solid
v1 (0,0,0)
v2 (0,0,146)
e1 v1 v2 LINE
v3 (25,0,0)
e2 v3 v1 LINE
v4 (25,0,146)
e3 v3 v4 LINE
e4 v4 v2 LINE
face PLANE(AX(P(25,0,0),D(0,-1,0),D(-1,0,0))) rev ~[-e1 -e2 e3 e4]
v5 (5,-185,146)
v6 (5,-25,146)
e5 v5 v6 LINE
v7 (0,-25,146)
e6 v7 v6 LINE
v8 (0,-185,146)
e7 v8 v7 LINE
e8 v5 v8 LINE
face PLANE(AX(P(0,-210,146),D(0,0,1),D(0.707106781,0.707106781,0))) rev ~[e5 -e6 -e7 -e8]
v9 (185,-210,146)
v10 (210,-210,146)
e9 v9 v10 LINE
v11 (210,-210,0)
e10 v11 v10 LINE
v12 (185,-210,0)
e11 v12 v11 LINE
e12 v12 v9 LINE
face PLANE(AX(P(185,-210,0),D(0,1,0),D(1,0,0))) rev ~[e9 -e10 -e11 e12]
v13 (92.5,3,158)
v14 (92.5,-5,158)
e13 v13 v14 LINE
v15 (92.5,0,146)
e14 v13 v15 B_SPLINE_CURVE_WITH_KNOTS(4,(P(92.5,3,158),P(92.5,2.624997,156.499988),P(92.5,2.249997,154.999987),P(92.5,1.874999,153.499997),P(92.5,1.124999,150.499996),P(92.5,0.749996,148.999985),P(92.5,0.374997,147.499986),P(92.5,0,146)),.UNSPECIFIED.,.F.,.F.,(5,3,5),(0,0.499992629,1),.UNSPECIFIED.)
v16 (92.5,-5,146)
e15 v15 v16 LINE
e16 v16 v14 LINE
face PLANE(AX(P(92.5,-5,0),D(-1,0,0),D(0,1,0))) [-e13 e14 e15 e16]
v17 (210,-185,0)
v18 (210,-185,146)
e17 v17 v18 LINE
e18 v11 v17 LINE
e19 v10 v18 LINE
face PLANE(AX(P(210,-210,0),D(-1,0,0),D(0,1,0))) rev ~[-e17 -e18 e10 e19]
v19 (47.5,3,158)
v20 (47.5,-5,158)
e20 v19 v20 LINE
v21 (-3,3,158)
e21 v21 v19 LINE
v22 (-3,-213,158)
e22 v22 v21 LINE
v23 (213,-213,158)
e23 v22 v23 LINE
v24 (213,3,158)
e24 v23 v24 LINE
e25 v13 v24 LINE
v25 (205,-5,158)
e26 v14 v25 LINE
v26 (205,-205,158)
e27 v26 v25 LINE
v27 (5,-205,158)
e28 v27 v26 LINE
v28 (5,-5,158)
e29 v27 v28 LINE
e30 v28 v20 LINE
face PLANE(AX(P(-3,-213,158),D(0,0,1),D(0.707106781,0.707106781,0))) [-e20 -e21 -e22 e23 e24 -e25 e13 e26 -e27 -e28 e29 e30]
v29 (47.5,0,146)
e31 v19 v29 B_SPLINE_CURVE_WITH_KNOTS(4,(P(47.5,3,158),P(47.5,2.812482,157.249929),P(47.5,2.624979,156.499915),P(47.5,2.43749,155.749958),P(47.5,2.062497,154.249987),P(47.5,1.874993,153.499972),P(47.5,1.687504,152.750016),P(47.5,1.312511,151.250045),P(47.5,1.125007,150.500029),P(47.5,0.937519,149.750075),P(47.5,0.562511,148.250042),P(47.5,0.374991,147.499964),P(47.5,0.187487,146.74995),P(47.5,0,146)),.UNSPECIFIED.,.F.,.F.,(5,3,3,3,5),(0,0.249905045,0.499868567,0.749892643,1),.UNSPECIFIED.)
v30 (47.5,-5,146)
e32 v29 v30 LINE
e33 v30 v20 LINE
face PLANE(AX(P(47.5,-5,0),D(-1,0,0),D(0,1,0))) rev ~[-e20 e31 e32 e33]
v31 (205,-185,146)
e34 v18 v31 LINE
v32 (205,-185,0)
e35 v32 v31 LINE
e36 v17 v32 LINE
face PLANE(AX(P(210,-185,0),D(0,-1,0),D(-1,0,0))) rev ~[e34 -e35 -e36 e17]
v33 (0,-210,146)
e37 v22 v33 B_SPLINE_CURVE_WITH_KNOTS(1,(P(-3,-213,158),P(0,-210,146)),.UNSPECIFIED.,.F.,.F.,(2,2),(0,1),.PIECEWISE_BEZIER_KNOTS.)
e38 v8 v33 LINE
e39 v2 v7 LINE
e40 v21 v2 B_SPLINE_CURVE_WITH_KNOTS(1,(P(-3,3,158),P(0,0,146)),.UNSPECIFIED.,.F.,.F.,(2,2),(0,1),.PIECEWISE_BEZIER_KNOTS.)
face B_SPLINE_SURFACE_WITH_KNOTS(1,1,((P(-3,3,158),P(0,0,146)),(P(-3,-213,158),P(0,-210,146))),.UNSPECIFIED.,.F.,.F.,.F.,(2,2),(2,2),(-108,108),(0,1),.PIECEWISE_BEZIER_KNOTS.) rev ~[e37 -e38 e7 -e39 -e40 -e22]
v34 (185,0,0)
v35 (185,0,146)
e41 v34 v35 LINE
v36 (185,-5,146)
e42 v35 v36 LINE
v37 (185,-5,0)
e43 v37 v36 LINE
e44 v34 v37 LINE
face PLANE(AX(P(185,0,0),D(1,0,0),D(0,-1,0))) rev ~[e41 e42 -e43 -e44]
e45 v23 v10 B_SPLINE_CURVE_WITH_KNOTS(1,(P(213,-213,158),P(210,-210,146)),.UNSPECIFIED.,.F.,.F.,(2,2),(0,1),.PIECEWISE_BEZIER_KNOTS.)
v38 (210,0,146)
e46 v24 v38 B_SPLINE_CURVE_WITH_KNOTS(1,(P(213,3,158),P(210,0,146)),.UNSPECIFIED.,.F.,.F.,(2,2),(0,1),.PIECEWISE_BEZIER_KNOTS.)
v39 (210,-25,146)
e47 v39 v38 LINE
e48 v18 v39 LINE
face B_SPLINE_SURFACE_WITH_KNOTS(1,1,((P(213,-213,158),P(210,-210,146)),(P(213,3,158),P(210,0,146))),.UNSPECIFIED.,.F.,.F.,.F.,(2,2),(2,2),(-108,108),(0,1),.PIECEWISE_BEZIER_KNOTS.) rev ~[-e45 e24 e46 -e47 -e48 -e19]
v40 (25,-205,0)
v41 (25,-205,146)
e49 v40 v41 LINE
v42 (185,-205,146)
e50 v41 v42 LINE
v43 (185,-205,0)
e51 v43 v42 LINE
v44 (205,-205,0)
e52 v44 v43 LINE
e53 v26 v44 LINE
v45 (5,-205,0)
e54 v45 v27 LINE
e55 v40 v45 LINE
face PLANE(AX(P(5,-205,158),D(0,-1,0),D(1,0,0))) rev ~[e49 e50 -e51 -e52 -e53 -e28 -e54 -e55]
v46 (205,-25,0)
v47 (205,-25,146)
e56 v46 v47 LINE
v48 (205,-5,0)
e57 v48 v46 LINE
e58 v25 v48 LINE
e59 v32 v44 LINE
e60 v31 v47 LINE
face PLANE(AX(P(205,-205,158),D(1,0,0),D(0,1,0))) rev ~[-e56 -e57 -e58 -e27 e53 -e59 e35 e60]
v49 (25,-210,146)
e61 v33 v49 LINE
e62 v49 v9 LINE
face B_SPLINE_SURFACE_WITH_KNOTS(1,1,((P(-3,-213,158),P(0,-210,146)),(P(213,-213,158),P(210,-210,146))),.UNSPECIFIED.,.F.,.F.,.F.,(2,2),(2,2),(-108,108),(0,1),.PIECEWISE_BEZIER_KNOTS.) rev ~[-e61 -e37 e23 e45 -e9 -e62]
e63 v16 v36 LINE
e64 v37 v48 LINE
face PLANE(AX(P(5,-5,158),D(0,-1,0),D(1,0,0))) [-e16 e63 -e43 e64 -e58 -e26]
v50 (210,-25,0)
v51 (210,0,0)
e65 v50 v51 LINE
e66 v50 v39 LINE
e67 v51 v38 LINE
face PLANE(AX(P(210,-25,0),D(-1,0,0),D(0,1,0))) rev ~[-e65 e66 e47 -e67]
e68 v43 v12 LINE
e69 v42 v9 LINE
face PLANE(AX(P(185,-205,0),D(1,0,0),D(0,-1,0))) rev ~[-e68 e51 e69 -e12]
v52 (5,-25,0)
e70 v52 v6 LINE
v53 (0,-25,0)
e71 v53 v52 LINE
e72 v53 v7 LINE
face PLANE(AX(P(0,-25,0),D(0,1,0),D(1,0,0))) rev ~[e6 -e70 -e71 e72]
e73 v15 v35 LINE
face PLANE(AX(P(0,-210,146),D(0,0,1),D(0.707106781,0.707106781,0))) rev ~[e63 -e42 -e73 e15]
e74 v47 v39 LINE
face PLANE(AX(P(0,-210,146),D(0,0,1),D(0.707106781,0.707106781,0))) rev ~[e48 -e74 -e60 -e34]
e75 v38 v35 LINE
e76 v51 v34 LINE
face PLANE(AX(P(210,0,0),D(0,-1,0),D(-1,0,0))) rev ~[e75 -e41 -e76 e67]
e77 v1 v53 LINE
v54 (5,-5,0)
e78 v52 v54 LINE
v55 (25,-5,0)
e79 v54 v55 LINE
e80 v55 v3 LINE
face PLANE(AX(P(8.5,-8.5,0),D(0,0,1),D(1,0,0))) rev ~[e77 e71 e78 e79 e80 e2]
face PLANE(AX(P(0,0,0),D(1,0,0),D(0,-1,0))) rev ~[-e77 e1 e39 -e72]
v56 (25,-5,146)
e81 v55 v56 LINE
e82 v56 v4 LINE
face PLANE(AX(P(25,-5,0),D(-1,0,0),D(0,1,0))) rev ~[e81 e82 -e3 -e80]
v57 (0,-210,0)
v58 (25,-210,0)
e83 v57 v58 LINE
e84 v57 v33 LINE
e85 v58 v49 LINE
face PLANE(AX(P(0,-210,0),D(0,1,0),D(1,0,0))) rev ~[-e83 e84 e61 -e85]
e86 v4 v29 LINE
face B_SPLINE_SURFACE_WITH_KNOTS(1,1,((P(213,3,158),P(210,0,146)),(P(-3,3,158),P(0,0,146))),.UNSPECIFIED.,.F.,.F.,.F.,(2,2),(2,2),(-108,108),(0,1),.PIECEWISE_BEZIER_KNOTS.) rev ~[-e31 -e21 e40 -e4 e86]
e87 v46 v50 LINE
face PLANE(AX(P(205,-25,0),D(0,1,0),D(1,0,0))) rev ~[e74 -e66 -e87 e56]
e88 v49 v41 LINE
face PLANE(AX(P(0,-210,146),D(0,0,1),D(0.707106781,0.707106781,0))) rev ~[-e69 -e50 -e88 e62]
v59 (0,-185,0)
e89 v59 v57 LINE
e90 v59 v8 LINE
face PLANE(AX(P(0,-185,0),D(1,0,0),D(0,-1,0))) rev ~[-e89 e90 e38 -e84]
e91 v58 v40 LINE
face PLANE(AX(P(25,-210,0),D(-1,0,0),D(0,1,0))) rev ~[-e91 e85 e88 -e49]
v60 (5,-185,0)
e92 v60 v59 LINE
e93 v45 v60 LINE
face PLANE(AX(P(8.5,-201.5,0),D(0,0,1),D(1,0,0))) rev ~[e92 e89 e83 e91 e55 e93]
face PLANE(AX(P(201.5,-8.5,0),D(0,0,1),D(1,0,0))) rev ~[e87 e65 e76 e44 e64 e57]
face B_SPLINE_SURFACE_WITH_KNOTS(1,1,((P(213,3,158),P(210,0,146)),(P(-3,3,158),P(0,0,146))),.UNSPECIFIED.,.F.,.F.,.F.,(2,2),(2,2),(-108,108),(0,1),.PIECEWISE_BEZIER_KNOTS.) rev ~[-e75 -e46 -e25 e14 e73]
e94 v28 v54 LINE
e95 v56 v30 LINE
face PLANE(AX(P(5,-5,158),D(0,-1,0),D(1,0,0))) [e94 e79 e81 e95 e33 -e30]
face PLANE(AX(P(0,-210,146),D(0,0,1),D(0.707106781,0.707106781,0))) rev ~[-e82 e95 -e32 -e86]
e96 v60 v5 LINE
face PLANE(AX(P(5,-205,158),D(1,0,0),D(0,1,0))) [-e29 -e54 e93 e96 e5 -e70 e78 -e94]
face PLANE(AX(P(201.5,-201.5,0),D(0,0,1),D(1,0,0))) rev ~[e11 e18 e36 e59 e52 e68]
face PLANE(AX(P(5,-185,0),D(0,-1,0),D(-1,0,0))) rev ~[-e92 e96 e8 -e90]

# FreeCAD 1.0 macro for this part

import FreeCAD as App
import Part
import Sketcher
from FreeCAD import Vector

doc = App.newDocument("Part")
body = doc.addObject("PartDesign::Body", "Body")

sketch1 = body.newObject("Sketcher::SketchObject", "Sketch")
sketch1.AttachmentSupport = (doc.getObject("XY_Plane"), [""])
sketch1.MapMode = "FlatFace"
sketch1.addGeometry([
    Part.LineSegment(Vector(25, 0, 0), Vector(0, 0, 0)),
    Part.LineSegment(Vector(0, 0, 0), Vector(0, -25, 0)),
    Part.LineSegment(Vector(0, -25, 0), Vector(5, -25, 0)),
    Part.LineSegment(Vector(5, -25, 0), Vector(5, -5, 0)),
    Part.LineSegment(Vector(5, -5, 0), Vector(25, -5, 0)),
    Part.LineSegment(Vector(25, -5, 0), Vector(25, 0, 0)),
], False)
sketch1.addConstraint([
    Sketcher.Constraint("Coincident", 0, 2, 1, 1),
    Sketcher.Constraint("Coincident", 1, 2, 2, 1),
    Sketcher.Constraint("Coincident", 2, 2, 3, 1),
    Sketcher.Constraint("Coincident", 3, 2, 4, 1),
    Sketcher.Constraint("Coincident", 4, 2, 5, 1),
    Sketcher.Constraint("Coincident", 5, 2, 0, 1),
    Sketcher.Constraint("Horizontal", 0),
    Sketcher.Constraint("Vertical", 1),
    Sketcher.Constraint("Horizontal", 2),
    Sketcher.Constraint("Vertical", 3),
    Sketcher.Constraint("Horizontal", 4),
    Sketcher.Constraint("Vertical", 5),
    Sketcher.Constraint("Coincident", 0, 2, -1, 1),
    Sketcher.Constraint("Equal", 0, 1),
    Sketcher.Constraint("Equal", 4, 3),
    Sketcher.Constraint("DistanceX", 0, 2, 0, 1, 25.0),
    Sketcher.Constraint("DistanceX", 2, 1, 2, 2, 5.0),
])
pad1 = body.newObject("PartDesign::Pad", "Pad")
pad1.Profile = sketch1
pad1.Length = 146
body2 = doc.addObject("PartDesign::Body", "Body001")

sketch2 = body2.newObject("Sketcher::SketchObject", "Sketch001")
sketch2.AttachmentSupport = (doc.getObject("XY_Plane001"), [""])
sketch2.MapMode = "FlatFace"
sketch2.addGeometry([
    Part.LineSegment(Vector(210, 0, 0), Vector(185, 0, 0)),
    Part.LineSegment(Vector(185, 0, 0), Vector(185, -5, 0)),
    Part.LineSegment(Vector(185, -5, 0), Vector(205, -5, 0)),
    Part.LineSegment(Vector(205, -5, 0), Vector(205, -25, 0)),
    Part.LineSegment(Vector(205, -25, 0), Vector(210, -25, 0)),
    Part.LineSegment(Vector(210, -25, 0), Vector(210, 0, 0)),
], False)
sketch2.addConstraint([
    Sketcher.Constraint("Coincident", 0, 2, 1, 1),
    Sketcher.Constraint("Coincident", 1, 2, 2, 1),
    Sketcher.Constraint("Coincident", 2, 2, 3, 1),
    Sketcher.Constraint("Coincident", 3, 2, 4, 1),
    Sketcher.Constraint("Coincident", 4, 2, 5, 1),
    Sketcher.Constraint("Coincident", 5, 2, 0, 1),
    Sketcher.Constraint("Horizontal", 0),
    Sketcher.Constraint("Vertical", 1),
    Sketcher.Constraint("Horizontal", 2),
    Sketcher.Constraint("Vertical", 3),
    Sketcher.Constraint("Horizontal", 4),
    Sketcher.Constraint("Vertical", 5),
    Sketcher.Constraint("PointOnObject", 0, 2, -1),
    Sketcher.Constraint("Equal", 4, 1),
    Sketcher.Constraint("Equal", 2, 3),
    Sketcher.Constraint("DistanceX", 0, 2, 0, 1, 25.0),
    Sketcher.Constraint("DistanceX", 2, 1, 2, 2, 20.0),
    Sketcher.Constraint("DistanceX", -1, 1, 0, 2, 185.0),
])
pad2 = body2.newObject("PartDesign::Pad", "Pad001")
pad2.Profile = sketch2
pad2.Length = 146
body3 = doc.addObject("PartDesign::Body", "Body002")

sketch3 = body3.newObject("Sketcher::SketchObject", "Sketch002")
sketch3.AttachmentSupport = (doc.getObject("XY_Plane002"), [""])
sketch3.MapMode = "FlatFace"
sketch3.addGeometry([
    Part.LineSegment(Vector(5, -185, 0), Vector(0, -185, 0)),
    Part.LineSegment(Vector(0, -185, 0), Vector(0, -210, 0)),
    Part.LineSegment(Vector(0, -210, 0), Vector(25, -210, 0)),
    Part.LineSegment(Vector(25, -210, 0), Vector(25, -205, 0)),
    Part.LineSegment(Vector(25, -205, 0), Vector(5, -205, 0)),
    Part.LineSegment(Vector(5, -205, 0), Vector(5, -185, 0)),
], False)
sketch3.addConstraint([
    Sketcher.Constraint("Coincident", 0, 2, 1, 1),
    Sketcher.Constraint("Coincident", 1, 2, 2, 1),
    Sketcher.Constraint("Coincident", 2, 2, 3, 1),
    Sketcher.Constraint("Coincident", 3, 2, 4, 1),
    Sketcher.Constraint("Coincident", 4, 2, 5, 1),
    Sketcher.Constraint("Coincident", 5, 2, 0, 1),
    Sketcher.Constraint("Horizontal", 0),
    Sketcher.Constraint("Vertical", 1),
    Sketcher.Constraint("Horizontal", 2),
    Sketcher.Constraint("Vertical", 3),
    Sketcher.Constraint("Horizontal", 4),
    Sketcher.Constraint("Vertical", 5),
    Sketcher.Constraint("PointOnObject", 0, 2, -2),
    Sketcher.Constraint("Equal", 2, 1),
    Sketcher.Constraint("Equal", 0, 3),
    Sketcher.Constraint("DistanceX", 0, 2, 0, 1, 5.0),
    Sketcher.Constraint("DistanceX", 2, 1, 2, 2, 25.0),
    Sketcher.Constraint("DistanceY", 0, 2, -1, 1, 185.0),
])
pad3 = body3.newObject("PartDesign::Pad", "Pad002")
pad3.Profile = sketch3
pad3.Length = 146
body4 = doc.addObject("PartDesign::Body", "Body003")

sketch4 = body4.newObject("Sketcher::SketchObject", "Sketch003")
sketch4.AttachmentSupport = (doc.getObject("XY_Plane003"), [""])
sketch4.MapMode = "FlatFace"
sketch4.addGeometry([
    Part.LineSegment(Vector(185, -210, 0), Vector(210, -210, 0)),
    Part.LineSegment(Vector(210, -210, 0), Vector(210, -185, 0)),
    Part.LineSegment(Vector(210, -185, 0), Vector(205, -185, 0)),
    Part.LineSegment(Vector(205, -185, 0), Vector(205, -205, 0)),
    Part.LineSegment(Vector(205, -205, 0), Vector(185, -205, 0)),
    Part.LineSegment(Vector(185, -205, 0), Vector(185, -210, 0)),
], False)
sketch4.addConstraint([
    Sketcher.Constraint("Coincident", 0, 2, 1, 1),
    Sketcher.Constraint("Coincident", 1, 2, 2, 1),
    Sketcher.Constraint("Coincident", 2, 2, 3, 1),
    Sketcher.Constraint("Coincident", 3, 2, 4, 1),
    Sketcher.Constraint("Coincident", 4, 2, 5, 1),
    Sketcher.Constraint("Coincident", 5, 2, 0, 1),
    Sketcher.Constraint("Horizontal", 0),
    Sketcher.Constraint("Vertical", 1),
    Sketcher.Constraint("Horizontal", 2),
    Sketcher.Constraint("Vertical", 3),
    Sketcher.Constraint("Horizontal", 4),
    Sketcher.Constraint("Vertical", 5),
    Sketcher.Constraint("Equal", 0, 1),
    Sketcher.Constraint("Equal", 4, 3),
    Sketcher.Constraint("DistanceX", 0, 1, 0, 2, 25.0),
    Sketcher.Constraint("DistanceX", 2, 2, 2, 1, 5.0),
    Sketcher.Constraint("DistanceX", -1, 1, 0, 2, 210.0),
    Sketcher.Constraint("DistanceY", 0, 2, -1, 1, 210.0),
])
pad4 = body4.newObject("PartDesign::Pad", "Pad003")
pad4.Profile = sketch4
pad4.Length = 146
body.AllowCompound = True
doc.recompute()

boolean = body.newObject("PartDesign::Boolean", "Boolean")
boolean.Type = "Fuse"
boolean.addObjects([body2])
doc.recompute()

boolean2 = body.newObject("PartDesign::Boolean", "Boolean001")
boolean2.Type = "Fuse"
boolean2.addObjects([body3])
doc.recompute()

boolean3 = body.newObject("PartDesign::Boolean", "Boolean002")
boolean3.Type = "Fuse"
boolean3.addObjects([body4])

sketch5 = body.newObject("Sketcher::SketchObject", "Sketch004")
sketch5.AttachmentSupport = (doc.getObject("XY_Plane"), [""])
sketch5.MapMode = "FlatFace"
sketch5.AttachmentOffset = App.Placement(Vector(0, 0, 158), App.Rotation())
sketch5.addGeometry([
    Part.LineSegment(Vector(-3, 3, 0), Vector(-3, -213, 0)),
    Part.LineSegment(Vector(-3, -213, 0), Vector(213, -213, 0)),
    Part.LineSegment(Vector(213, -213, 0), Vector(213, 3, 0)),
    Part.LineSegment(Vector(213, 3, 0), Vector(-3, 3, 0)),
], False)
sketch5.addConstraint([
    Sketcher.Constraint("Coincident", 0, 2, 1, 1),
    Sketcher.Constraint("Coincident", 1, 2, 2, 1),
    Sketcher.Constraint("Coincident", 2, 2, 3, 1),
    Sketcher.Constraint("Coincident", 3, 2, 0, 1),
    Sketcher.Constraint("Vertical", 0),
    Sketcher.Constraint("Horizontal", 1),
    Sketcher.Constraint("Vertical", 2),
    Sketcher.Constraint("Horizontal", 3),
    Sketcher.Constraint("Equal", 3, 0),
    Sketcher.Constraint("DistanceX", 1, 1, 1, 2, 216.0),
    Sketcher.Constraint("DistanceX", 0, 2, -1, 1, 3.0),
    Sketcher.Constraint("DistanceY", 0, 2, -1, 1, 213.0),
])

sketch6 = body.newObject("Sketcher::SketchObject", "Sketch005")
sketch6.AttachmentSupport = (doc.getObject("XY_Plane"), [""])
sketch6.MapMode = "FlatFace"
sketch6.AttachmentOffset = App.Placement(Vector(0, 0, 146), App.Rotation())
sketch6.addGeometry([
    Part.LineSegment(Vector(0, 0, 0), Vector(0, -210, 0)),
    Part.LineSegment(Vector(0, -210, 0), Vector(210, -210, 0)),
    Part.LineSegment(Vector(210, -210, 0), Vector(210, 0, 0)),
    Part.LineSegment(Vector(210, 0, 0), Vector(0, 0, 0)),
], False)
sketch6.addConstraint([
    Sketcher.Constraint("Coincident", 0, 2, 1, 1),
    Sketcher.Constraint("Coincident", 1, 2, 2, 1),
    Sketcher.Constraint("Coincident", 2, 2, 3, 1),
    Sketcher.Constraint("Coincident", 3, 2, 0, 1),
    Sketcher.Constraint("Vertical", 0),
    Sketcher.Constraint("Horizontal", 1),
    Sketcher.Constraint("Vertical", 2),
    Sketcher.Constraint("Horizontal", 3),
    Sketcher.Constraint("Coincident", 3, 2, -1, 1),
    Sketcher.Constraint("Equal", 3, 0),
    Sketcher.Constraint("DistanceX", 1, 1, 1, 2, 210.0),
])

additiveloft = body.newObject("PartDesign::AdditiveLoft", "AdditiveLoft")
additiveloft.Profile = sketch5
additiveloft.Sections = [sketch6]

sketch7 = body.newObject("Sketcher::SketchObject", "Sketch006")
sketch7.AttachmentSupport = (doc.getObject("XY_Plane"), [""])
sketch7.MapMode = "FlatFace"
sketch7.AttachmentOffset = App.Placement(Vector(0, 0, 158), App.Rotation())
sketch7.addGeometry([
    Part.LineSegment(Vector(5, -5, 0), Vector(5, -205, 0)),
    Part.LineSegment(Vector(5, -205, 0), Vector(205, -205, 0)),
    Part.LineSegment(Vector(205, -205, 0), Vector(205, -5, 0)),
    Part.LineSegment(Vector(205, -5, 0), Vector(5, -5, 0)),
], False)
sketch7.addConstraint([
    Sketcher.Constraint("Coincident", 0, 2, 1, 1),
    Sketcher.Constraint("Coincident", 1, 2, 2, 1),
    Sketcher.Constraint("Coincident", 2, 2, 3, 1),
    Sketcher.Constraint("Coincident", 3, 2, 0, 1),
    Sketcher.Constraint("Vertical", 0),
    Sketcher.Constraint("Horizontal", 1),
    Sketcher.Constraint("Vertical", 2),
    Sketcher.Constraint("Horizontal", 3),
    Sketcher.Constraint("Equal", 3, 0),
    Sketcher.Constraint("DistanceX", 1, 1, 1, 2, 200.0),
    Sketcher.Constraint("DistanceX", -1, 1, 0, 2, 5.0),
    Sketcher.Constraint("DistanceY", 0, 2, -1, 1, 205.0),
])
pocket1 = body.newObject("PartDesign::Pocket", "Pocket")
pocket1.Profile = sketch7
pocket1.Length = 12

sketch8 = body.newObject("Sketcher::SketchObject", "Sketch007")
sketch8.AttachmentSupport = (doc.getObject("XY_Plane"), [""])
sketch8.MapMode = "FlatFace"
sketch8.addGeometry([
    Part.LineSegment(Vector(48, 20, 0), Vector(48, -5, 0)),
    Part.LineSegment(Vector(48, -5, 0), Vector(92, -5, 0)),
    Part.LineSegment(Vector(92, -5, 0), Vector(92, 20, 0)),
    Part.LineSegment(Vector(92, 20, 0), Vector(48, 20, 0)),
], False)
sketch8.addConstraint([
    Sketcher.Constraint("Coincident", 0, 2, 1, 1),
    Sketcher.Constraint("Coincident", 1, 2, 2, 1),
    Sketcher.Constraint("Coincident", 2, 2, 3, 1),
    Sketcher.Constraint("Coincident", 3, 2, 0, 1),
    Sketcher.Constraint("Vertical", 0),
    Sketcher.Constraint("Horizontal", 1),
    Sketcher.Constraint("Vertical", 2),
    Sketcher.Constraint("Horizontal", 3),
    Sketcher.Constraint("DistanceX", 1, 1, 1, 2, 45.0),
    Sketcher.Constraint("DistanceY", 0, 2, 0, 1, 25.0),
    Sketcher.Constraint("DistanceY", 0, 2, -1, 1, 5.0),
    Sketcher.Constraint("DistanceX", -1, 1, 0, 2, 47.5),
])
pocket2 = body.newObject("PartDesign::Pocket", "Pocket001")
pocket2.Profile = sketch8
pocket2.Length = 180
pocket2.Reversed = True

doc.recompute()
